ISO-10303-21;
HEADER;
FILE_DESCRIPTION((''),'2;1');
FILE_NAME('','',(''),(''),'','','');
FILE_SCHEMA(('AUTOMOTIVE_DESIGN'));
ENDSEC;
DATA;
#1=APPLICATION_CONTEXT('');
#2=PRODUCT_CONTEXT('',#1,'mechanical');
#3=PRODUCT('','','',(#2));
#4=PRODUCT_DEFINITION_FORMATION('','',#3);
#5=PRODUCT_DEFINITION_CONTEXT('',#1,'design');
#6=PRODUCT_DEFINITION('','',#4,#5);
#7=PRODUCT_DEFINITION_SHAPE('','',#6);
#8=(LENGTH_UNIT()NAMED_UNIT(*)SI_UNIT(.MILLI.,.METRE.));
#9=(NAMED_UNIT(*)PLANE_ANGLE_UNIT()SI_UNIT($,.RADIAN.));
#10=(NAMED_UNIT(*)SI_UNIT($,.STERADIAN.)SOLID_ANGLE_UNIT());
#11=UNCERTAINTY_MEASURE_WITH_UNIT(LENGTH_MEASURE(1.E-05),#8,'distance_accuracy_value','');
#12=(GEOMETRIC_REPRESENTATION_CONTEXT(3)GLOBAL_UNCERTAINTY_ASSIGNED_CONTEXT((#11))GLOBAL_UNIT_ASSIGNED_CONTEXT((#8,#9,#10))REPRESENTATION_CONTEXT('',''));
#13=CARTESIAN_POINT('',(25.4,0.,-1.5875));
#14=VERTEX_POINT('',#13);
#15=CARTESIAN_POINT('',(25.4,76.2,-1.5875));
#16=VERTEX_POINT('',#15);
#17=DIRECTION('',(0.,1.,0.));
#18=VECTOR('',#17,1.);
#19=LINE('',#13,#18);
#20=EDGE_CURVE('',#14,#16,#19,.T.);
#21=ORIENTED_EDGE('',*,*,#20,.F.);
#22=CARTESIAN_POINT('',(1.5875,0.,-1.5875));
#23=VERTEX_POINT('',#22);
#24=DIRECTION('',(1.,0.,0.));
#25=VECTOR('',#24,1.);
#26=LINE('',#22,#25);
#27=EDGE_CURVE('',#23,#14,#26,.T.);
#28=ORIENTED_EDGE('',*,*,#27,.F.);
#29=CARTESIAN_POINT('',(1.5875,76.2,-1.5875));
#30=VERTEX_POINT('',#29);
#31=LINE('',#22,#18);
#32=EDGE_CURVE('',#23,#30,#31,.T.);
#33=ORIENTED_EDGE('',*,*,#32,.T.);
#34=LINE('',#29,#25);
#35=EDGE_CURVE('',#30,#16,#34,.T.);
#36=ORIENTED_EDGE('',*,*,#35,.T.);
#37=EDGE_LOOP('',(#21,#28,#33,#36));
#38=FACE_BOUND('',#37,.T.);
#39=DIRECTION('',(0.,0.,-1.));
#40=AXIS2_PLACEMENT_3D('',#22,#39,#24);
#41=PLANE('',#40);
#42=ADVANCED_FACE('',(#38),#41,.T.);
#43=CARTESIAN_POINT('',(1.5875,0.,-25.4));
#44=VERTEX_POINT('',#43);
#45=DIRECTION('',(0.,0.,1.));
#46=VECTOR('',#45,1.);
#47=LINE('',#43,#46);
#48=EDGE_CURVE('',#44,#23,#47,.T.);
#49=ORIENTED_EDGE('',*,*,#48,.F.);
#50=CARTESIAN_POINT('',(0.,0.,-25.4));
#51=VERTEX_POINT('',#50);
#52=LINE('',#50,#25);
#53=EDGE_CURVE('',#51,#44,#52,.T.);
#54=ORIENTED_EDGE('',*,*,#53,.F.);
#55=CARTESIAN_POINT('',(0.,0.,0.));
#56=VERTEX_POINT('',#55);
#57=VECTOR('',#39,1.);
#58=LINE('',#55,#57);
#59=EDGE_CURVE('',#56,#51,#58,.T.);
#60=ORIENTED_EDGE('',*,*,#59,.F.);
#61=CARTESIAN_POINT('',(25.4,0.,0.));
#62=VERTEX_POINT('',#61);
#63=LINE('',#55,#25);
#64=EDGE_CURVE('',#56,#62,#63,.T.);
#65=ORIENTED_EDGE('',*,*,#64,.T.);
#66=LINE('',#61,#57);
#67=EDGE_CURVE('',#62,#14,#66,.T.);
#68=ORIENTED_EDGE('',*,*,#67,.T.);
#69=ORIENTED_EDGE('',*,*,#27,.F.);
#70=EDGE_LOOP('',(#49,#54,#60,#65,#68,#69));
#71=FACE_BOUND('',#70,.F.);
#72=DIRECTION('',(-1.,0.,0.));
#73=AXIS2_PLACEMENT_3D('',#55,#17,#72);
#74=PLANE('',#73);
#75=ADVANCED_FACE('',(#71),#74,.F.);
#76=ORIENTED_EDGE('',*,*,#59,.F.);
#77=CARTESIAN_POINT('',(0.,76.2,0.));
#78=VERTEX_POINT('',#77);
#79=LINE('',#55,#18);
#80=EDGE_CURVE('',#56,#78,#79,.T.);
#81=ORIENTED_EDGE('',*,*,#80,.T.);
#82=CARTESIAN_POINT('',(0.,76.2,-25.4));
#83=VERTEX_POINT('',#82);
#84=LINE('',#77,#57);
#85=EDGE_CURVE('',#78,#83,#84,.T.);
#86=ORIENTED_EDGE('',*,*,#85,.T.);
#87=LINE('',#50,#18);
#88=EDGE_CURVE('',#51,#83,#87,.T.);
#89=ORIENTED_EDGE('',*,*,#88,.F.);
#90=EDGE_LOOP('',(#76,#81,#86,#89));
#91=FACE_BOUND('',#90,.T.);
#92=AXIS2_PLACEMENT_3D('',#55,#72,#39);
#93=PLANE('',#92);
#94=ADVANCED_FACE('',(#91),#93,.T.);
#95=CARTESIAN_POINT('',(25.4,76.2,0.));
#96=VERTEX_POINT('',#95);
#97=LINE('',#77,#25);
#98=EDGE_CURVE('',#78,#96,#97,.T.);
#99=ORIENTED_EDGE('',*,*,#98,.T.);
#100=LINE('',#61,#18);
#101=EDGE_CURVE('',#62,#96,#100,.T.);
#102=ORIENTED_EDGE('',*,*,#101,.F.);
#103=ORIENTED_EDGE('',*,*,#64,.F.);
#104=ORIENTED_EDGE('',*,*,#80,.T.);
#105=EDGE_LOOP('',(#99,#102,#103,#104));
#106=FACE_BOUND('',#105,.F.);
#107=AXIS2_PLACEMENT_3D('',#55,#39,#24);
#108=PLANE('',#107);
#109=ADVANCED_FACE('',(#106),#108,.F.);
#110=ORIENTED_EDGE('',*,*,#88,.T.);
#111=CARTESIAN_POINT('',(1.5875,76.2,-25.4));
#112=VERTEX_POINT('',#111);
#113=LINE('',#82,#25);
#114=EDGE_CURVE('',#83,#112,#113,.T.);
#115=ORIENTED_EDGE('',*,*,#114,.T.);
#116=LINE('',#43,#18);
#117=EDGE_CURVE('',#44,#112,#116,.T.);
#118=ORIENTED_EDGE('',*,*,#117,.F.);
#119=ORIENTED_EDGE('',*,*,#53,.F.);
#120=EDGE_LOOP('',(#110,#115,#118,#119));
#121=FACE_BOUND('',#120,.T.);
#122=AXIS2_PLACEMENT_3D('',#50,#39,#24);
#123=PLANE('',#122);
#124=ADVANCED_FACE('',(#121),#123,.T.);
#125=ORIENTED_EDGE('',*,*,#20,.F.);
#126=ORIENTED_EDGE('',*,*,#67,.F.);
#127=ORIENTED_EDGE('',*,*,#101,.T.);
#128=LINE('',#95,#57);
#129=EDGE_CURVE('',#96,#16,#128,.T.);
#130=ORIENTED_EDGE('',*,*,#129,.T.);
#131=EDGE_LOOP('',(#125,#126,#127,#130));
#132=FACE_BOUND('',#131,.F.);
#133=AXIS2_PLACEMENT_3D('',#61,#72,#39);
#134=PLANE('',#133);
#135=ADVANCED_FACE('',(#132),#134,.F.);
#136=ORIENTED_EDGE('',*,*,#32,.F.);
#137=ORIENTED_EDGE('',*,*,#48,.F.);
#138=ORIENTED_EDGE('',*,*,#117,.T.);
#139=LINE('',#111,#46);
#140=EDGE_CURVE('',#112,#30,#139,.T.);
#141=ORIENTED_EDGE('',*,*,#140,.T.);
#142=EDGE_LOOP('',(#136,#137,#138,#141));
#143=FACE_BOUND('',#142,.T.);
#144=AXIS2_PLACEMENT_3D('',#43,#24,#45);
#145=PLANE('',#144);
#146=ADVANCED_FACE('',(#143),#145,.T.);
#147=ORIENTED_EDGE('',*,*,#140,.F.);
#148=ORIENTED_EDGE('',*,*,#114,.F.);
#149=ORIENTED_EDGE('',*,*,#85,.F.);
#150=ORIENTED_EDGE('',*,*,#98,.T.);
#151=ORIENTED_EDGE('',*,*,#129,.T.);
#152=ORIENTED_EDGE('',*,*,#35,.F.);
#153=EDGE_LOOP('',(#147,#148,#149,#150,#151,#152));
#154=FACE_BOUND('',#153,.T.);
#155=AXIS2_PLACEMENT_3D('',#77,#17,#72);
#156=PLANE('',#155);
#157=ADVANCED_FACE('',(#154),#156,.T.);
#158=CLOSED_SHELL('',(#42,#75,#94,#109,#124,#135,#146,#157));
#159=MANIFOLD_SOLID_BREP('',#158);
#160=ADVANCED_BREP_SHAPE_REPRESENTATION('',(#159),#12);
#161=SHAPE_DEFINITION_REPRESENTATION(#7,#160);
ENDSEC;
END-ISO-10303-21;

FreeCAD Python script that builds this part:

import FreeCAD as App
import Part
import Sketcher
Q = App.Units.Quantity


def add_polygon(sketch, points):
    """Adds a closed chain of lines whose ends are joined by coincident constraints."""
    first, n = sketch.GeometryCount, len(points)
    for a, b in zip(points, points[1:] + points[:1]):
        sketch.addGeometry(Part.LineSegment(App.Vector(*a, 0), App.Vector(*b, 0)), False)
    for i in range(n):
        sketch.addConstraint(Sketcher.Constraint("Coincident", first + i, 2, first + (i + 1) % n, 1))

doc = App.newDocument("Part")
body = doc.addObject("PartDesign::Body", "Body")

sketch1 = doc.addObject("Sketcher::SketchObject", "Sketch")
body.addObject(sketch1)
sketch1.AttachmentSupport = (doc.XZ_Plane, [""])
sketch1.MapMode = "FlatFace"
add_polygon(sketch1, [(0, -25.4), (0, 0), (25.4, 0), (25.4, -1.5875), (1.5875, -1.5875), (1.5875, -25.4)])
sketch1.addConstraint([
    Sketcher.Constraint("Vertical", 0),
    Sketcher.Constraint("Horizontal", 1),
    Sketcher.Constraint("Vertical", 2),
    Sketcher.Constraint("Horizontal", 3),
    Sketcher.Constraint("Vertical", 4),
    Sketcher.Constraint("Horizontal", 5),
    Sketcher.Constraint("Coincident", 0, 2, -1, 1),
    Sketcher.Constraint("Equal", 1, 0),
    Sketcher.Constraint("Equal", 5, 2),
    Sketcher.Constraint("DistanceX", 1, 1, 1, 2, Q("1 in")),
    Sketcher.Constraint("DistanceX", 5, 2, 5, 1, Q("0.0625 in")),
])
pad1 = doc.addObject("PartDesign::Pad", "Pad")
body.addObject(pad1)
pad1.Profile = sketch1
pad1.Length = Q("3 in")
pad1.Reversed = True

doc.recompute()
